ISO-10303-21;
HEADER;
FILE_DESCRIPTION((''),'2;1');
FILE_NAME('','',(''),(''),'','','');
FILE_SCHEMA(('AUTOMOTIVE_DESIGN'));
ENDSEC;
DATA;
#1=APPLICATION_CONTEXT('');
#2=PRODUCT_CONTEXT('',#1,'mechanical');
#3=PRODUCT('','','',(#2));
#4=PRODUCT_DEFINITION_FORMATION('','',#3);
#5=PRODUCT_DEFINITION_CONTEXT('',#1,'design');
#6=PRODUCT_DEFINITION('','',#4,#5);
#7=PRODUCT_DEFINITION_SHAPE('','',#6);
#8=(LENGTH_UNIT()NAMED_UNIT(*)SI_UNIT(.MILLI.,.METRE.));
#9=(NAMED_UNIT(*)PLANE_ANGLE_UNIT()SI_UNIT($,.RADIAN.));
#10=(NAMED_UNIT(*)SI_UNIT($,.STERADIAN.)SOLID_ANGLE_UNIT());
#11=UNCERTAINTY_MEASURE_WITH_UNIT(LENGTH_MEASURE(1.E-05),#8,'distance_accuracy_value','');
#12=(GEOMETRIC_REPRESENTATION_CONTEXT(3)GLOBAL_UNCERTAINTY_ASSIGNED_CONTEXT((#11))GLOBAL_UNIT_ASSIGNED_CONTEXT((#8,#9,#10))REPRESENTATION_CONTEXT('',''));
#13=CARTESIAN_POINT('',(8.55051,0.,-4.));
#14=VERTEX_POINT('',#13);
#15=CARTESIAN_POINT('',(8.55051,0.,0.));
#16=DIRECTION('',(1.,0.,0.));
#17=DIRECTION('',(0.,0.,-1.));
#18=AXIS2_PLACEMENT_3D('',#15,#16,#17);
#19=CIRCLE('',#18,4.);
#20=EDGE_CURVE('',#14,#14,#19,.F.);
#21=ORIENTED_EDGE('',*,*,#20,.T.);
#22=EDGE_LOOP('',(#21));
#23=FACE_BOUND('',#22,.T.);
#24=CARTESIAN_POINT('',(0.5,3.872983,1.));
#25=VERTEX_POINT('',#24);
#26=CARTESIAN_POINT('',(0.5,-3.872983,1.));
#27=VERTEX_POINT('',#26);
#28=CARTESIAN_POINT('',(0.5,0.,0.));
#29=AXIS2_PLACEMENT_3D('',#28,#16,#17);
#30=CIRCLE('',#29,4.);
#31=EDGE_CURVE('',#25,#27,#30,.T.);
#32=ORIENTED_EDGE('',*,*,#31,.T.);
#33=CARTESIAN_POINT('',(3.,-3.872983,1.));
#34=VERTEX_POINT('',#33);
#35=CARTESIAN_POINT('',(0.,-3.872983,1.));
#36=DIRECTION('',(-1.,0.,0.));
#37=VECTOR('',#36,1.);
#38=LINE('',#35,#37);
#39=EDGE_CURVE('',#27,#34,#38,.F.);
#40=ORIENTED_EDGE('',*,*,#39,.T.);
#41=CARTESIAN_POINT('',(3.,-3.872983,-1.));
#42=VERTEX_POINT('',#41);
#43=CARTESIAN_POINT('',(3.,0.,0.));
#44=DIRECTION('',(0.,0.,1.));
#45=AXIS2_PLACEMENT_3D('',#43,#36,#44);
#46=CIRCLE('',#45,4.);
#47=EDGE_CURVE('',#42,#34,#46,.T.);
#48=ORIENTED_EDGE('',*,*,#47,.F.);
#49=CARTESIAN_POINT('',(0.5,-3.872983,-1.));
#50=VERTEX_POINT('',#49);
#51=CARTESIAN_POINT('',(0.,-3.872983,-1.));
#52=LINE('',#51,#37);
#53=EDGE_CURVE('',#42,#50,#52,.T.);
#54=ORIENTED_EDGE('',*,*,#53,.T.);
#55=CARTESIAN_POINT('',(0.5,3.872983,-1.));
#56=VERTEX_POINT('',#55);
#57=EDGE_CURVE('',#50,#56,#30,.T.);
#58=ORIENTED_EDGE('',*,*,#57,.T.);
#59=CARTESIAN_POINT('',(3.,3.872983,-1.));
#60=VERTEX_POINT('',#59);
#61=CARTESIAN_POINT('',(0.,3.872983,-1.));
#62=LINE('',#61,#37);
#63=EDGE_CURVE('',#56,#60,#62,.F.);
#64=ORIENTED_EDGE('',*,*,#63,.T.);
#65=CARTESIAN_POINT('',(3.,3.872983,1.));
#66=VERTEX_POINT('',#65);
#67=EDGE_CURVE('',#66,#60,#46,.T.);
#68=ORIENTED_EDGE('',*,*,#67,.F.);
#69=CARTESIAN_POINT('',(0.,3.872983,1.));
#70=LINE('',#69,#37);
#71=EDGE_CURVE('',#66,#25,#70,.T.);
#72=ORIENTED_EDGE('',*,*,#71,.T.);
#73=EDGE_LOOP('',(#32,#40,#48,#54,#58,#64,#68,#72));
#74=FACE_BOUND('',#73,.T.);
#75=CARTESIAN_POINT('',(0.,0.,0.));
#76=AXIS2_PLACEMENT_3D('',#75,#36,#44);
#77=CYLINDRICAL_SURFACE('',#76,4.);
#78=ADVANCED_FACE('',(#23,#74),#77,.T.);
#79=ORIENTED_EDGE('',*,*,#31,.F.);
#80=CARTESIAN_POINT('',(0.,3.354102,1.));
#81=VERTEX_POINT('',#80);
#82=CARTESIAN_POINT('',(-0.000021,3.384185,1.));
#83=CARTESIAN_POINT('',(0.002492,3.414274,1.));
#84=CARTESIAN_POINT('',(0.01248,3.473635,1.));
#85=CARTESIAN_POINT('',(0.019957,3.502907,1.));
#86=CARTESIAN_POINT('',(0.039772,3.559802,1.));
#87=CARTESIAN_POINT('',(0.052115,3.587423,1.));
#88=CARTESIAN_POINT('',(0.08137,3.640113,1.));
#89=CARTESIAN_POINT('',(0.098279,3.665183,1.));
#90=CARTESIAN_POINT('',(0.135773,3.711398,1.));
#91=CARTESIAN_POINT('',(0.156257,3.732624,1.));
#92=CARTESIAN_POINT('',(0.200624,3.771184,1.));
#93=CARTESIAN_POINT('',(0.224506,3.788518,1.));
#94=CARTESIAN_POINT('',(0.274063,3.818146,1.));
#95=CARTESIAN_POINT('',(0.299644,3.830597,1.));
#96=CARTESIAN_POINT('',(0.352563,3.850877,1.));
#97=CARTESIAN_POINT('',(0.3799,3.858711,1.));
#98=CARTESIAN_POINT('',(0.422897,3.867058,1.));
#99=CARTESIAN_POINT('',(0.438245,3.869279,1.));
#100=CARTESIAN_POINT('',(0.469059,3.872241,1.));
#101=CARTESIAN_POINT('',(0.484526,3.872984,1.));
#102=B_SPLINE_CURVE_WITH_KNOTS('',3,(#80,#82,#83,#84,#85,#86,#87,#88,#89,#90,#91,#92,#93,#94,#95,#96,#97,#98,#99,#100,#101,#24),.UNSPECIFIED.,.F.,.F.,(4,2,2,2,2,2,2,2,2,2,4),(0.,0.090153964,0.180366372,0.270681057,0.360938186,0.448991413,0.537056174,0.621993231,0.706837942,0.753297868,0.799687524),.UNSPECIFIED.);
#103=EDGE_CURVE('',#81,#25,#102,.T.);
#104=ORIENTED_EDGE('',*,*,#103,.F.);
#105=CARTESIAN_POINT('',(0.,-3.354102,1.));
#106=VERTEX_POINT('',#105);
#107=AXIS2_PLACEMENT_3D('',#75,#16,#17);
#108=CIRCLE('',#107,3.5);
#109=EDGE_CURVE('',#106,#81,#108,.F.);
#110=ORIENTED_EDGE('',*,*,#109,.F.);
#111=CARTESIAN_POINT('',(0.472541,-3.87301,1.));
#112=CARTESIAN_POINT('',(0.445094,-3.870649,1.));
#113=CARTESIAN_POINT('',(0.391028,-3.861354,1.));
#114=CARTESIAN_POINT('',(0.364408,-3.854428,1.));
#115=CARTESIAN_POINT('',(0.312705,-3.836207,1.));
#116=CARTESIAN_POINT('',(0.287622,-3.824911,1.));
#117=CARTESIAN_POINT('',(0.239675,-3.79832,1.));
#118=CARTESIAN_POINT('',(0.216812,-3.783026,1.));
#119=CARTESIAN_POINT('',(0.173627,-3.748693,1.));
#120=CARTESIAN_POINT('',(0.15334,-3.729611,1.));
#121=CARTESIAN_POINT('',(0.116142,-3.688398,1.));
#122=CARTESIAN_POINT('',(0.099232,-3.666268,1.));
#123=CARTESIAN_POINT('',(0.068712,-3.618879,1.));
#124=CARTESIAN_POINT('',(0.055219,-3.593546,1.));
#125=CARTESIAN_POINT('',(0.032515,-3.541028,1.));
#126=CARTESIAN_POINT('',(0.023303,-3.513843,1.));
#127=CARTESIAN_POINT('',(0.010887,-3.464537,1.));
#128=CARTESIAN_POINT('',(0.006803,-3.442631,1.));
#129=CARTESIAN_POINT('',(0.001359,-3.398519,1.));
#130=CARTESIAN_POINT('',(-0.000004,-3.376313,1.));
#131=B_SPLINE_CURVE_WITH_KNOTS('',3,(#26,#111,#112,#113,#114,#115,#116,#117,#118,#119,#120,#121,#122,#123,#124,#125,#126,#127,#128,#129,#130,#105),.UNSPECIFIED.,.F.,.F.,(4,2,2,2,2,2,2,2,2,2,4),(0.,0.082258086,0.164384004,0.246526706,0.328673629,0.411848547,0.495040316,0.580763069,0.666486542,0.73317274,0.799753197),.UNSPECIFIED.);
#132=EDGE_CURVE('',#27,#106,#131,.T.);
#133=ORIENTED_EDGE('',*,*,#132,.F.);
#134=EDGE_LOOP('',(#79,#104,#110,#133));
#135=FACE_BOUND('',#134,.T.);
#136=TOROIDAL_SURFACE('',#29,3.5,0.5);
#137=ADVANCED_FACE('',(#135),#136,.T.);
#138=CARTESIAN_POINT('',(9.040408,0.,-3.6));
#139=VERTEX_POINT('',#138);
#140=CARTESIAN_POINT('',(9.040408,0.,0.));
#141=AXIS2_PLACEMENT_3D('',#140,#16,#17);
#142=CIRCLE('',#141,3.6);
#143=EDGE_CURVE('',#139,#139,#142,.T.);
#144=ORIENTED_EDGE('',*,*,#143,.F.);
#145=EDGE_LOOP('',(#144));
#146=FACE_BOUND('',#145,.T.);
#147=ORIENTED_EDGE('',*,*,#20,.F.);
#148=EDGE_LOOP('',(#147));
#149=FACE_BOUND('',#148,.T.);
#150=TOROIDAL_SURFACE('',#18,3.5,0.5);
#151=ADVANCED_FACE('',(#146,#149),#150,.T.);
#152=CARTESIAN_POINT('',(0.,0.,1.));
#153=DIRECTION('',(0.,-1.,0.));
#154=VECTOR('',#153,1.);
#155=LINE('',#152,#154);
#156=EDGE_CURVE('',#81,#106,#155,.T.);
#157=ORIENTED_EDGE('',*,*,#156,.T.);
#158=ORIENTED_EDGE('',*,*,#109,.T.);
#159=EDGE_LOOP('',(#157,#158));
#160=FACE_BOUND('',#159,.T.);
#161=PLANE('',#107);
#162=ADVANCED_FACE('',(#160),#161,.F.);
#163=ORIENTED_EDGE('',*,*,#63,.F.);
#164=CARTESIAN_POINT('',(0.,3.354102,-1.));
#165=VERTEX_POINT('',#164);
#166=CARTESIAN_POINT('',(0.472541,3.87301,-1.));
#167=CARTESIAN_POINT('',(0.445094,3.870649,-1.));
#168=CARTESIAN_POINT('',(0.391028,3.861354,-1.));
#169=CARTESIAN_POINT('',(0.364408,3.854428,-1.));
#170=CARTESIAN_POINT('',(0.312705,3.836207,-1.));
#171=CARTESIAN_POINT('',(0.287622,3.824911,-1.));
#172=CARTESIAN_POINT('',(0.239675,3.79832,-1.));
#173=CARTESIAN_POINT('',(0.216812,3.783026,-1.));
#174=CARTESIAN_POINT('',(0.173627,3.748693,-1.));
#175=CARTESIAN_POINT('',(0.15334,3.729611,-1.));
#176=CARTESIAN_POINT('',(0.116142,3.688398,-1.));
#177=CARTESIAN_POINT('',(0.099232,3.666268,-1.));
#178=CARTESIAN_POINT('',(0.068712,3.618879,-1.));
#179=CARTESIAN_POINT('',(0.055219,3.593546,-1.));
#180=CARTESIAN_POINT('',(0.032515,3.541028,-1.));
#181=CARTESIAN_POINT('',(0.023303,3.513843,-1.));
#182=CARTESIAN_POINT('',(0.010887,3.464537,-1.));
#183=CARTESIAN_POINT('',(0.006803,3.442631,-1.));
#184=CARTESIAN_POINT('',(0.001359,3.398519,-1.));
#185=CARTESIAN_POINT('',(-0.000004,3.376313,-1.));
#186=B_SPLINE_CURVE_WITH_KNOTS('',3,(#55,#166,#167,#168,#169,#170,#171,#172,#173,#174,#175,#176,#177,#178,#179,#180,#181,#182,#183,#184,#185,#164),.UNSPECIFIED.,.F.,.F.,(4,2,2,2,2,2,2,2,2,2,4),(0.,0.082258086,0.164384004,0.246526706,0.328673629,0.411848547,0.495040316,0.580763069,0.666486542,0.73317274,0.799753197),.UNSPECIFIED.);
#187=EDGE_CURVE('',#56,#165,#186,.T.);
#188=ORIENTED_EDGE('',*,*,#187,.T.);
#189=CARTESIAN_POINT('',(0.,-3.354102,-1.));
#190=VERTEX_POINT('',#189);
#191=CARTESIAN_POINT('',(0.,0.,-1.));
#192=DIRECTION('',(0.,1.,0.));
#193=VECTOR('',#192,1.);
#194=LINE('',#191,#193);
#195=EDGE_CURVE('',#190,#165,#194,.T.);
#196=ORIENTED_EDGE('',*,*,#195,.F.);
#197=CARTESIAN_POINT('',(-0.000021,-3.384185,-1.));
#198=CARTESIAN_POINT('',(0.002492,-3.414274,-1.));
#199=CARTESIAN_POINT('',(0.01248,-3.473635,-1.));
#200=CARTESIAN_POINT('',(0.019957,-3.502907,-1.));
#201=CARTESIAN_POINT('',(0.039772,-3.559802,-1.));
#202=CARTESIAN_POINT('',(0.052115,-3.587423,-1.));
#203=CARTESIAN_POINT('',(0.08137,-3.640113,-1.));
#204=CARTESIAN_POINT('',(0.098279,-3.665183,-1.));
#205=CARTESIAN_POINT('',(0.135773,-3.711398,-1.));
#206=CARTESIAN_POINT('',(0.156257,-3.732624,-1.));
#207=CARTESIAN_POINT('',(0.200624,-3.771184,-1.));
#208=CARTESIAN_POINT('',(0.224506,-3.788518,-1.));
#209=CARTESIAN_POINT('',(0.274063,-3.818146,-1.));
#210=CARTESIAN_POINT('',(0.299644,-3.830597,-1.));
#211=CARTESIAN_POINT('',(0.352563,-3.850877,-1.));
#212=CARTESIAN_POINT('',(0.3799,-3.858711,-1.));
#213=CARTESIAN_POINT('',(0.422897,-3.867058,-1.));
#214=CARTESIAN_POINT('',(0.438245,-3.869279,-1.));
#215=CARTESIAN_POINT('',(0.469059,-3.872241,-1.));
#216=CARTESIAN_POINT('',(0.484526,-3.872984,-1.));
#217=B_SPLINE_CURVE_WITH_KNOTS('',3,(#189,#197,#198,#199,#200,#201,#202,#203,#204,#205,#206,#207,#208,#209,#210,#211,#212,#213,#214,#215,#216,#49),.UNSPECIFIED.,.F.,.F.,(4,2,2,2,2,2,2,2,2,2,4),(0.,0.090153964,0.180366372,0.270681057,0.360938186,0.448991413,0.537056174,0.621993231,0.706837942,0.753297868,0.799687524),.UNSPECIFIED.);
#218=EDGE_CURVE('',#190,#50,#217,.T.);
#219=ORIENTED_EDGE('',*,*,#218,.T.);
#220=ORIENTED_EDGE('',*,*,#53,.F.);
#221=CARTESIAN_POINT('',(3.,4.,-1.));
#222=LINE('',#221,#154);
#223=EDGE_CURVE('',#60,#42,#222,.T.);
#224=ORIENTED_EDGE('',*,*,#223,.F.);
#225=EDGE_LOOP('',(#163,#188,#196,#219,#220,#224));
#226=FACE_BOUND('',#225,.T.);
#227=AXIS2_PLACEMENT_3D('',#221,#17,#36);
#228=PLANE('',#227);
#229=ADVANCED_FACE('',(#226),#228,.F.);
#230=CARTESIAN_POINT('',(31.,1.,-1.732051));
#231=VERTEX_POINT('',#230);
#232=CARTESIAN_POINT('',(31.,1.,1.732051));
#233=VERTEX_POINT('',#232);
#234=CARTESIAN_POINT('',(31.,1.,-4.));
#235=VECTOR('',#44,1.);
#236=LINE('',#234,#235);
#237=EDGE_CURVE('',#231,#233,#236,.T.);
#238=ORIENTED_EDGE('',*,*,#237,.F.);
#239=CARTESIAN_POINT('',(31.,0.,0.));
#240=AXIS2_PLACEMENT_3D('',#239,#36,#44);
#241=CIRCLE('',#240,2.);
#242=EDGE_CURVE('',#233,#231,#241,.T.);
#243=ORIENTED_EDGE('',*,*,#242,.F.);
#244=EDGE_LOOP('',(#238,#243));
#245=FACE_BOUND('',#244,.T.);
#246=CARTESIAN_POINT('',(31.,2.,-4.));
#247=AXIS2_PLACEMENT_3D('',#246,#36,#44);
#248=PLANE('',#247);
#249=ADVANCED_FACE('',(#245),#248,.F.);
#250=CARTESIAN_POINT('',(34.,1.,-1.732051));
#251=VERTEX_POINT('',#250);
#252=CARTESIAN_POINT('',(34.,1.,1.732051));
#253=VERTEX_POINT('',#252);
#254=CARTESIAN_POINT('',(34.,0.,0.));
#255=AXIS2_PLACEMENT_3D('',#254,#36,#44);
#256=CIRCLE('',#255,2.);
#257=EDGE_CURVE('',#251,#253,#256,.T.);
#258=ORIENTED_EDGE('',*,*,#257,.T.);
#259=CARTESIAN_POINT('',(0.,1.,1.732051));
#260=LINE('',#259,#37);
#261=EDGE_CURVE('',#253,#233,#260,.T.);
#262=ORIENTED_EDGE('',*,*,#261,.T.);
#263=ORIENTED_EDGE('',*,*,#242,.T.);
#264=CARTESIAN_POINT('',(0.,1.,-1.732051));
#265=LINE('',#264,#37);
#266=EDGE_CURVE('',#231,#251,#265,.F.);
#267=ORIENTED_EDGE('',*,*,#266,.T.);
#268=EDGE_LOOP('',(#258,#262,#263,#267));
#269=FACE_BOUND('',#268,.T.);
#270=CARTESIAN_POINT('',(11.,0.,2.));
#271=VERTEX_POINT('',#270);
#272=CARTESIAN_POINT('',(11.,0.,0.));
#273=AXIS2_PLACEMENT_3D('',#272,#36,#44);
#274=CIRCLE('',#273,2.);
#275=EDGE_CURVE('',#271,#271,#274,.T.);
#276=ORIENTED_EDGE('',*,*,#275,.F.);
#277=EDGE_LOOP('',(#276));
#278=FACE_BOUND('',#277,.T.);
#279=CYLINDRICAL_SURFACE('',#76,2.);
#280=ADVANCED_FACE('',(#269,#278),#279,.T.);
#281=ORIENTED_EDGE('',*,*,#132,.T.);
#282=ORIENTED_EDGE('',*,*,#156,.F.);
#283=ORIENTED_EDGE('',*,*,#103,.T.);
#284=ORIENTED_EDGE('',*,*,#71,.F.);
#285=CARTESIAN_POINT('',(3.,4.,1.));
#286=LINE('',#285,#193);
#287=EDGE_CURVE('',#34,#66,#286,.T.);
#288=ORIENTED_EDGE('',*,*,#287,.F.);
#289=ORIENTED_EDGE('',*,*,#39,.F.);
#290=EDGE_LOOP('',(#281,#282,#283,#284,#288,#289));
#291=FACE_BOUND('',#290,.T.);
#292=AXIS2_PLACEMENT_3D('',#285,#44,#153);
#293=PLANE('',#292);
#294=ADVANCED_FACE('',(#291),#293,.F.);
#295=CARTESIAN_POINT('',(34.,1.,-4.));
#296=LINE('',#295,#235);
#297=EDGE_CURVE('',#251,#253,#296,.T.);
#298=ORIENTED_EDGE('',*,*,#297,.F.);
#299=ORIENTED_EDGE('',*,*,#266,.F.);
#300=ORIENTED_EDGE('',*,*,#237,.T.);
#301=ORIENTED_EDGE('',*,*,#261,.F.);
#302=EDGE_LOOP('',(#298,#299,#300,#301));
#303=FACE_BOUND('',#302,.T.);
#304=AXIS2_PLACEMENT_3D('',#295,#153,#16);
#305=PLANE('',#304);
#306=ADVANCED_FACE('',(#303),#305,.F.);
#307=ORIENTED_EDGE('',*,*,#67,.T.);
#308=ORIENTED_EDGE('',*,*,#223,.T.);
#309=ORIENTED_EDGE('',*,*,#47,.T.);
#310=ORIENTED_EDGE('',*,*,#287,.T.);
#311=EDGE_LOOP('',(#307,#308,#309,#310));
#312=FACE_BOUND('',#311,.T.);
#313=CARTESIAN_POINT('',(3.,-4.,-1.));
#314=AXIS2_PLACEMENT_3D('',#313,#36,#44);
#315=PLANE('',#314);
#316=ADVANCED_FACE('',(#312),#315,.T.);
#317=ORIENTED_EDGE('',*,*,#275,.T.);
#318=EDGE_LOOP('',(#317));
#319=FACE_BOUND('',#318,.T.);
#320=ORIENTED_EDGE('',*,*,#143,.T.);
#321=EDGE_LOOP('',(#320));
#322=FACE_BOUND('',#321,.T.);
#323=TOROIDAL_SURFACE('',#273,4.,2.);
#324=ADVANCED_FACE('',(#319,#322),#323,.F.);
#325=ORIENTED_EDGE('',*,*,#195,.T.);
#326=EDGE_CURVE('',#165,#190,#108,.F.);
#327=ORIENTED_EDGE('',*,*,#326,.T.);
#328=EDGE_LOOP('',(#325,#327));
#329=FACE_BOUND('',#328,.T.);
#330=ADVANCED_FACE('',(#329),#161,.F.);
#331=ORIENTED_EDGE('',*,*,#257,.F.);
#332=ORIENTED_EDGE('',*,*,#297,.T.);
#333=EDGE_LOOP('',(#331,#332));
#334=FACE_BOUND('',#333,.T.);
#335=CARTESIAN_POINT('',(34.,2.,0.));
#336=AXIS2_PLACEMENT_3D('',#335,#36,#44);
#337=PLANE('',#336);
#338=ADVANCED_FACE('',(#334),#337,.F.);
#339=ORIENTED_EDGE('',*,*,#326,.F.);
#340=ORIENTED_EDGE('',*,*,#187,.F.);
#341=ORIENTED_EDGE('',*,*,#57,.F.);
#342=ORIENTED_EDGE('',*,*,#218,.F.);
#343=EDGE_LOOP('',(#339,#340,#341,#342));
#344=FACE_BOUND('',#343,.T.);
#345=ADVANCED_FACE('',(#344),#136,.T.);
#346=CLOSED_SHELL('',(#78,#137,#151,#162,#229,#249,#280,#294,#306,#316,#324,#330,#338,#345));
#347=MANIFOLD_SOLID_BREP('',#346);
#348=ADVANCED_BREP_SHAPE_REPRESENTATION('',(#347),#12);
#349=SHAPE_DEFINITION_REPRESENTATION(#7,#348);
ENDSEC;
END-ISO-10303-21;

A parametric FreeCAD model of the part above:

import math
import FreeCAD as App
import Part
import Sketcher
from FreeCAD import Vector


def edges_at(feature, points):
    """Names of the edges that pass closest to the given points."""
    edges = feature.Shape.Edges
    near = lambda p: min(range(len(edges)), key=lambda i: edges[i].distToShape(Part.Vertex(*p))[0])
    return sorted({f"Edge{near(p) + 1}" for p in points})

doc = App.newDocument("Part")
params = doc.addObject("Spreadsheet::Sheet", "Params")
for row, (alias, value) in enumerate([
    ("sketch1_radius", "2 mm"),
    ("sketch1_width", "34 mm"),
    ("sketch1_width2", "23 mm"),
    ("sketch1_height", "4 mm"),
    ("sketch1_height2", "2 mm"),
    ("revolution_angle", "360 deg"),
    ("sketch2_width", "8 mm"),
    ("sketch2_height", "2 mm"),
    ("pocket1_length", "3 mm"),
    ("fillet_radius", "0.5 mm"),
    ("sketch3_width", "3 mm"),
    ("sketch3_height", "1 mm"),
    ("pocket2_length", "8 mm"),
], start=1):
    params.set(f"A{row}", alias)
    params.set(f"B{row}", "=" + value)
    params.setAlias(f"B{row}", alias)

body = doc.addObject("PartDesign::Body", "Body")

# Sketch on XY plane
sketch1 = body.newObject("Sketcher::SketchObject", "Sketch")
sketch1.AttachmentSupport = (doc.getObject("XY_Plane"), [""])
sketch1.MapMode = "FlatFace"
sketch1.addGeometry(Part.LineSegment(Vector(0, 4, 0), Vector(0, 0, 0)), False)
sketch1.addGeometry(Part.LineSegment(Vector(0, 0, 0), Vector(34, 0, 0)), False)
sketch1.addGeometry(Part.LineSegment(Vector(34, 0, 0), Vector(34, 2, 0)), False)
sketch1.addGeometry(Part.LineSegment(Vector(34, 2, 0), Vector(11, 2, 0)), False)
sketch1.addGeometry(Part.ArcOfCircle(Part.Circle(Vector(11, 4, 0), Vector(0, 0, 1), 2), math.radians(-180), math.radians(-90)), False)
sketch1.addGeometry(Part.LineSegment(Vector(9, 4, 0), Vector(0, 4, 0)), False)
sketch1.addConstraint(Sketcher.Constraint("Coincident", 0, 2, 1, 1))
sketch1.addConstraint(Sketcher.Constraint("Coincident", 1, 2, 2, 1))
sketch1.addConstraint(Sketcher.Constraint("Coincident", 2, 2, 3, 1))
sketch1.addConstraint(Sketcher.Constraint("Tangent", 3, 2, 4, 2))
sketch1.addConstraint(Sketcher.Constraint("Coincident", 4, 1, 5, 1))
sketch1.addConstraint(Sketcher.Constraint("Coincident", 5, 2, 0, 1))
sketch1.addConstraint(Sketcher.Constraint("Vertical", 0))
sketch1.addConstraint(Sketcher.Constraint("Horizontal", 1))
sketch1.addConstraint(Sketcher.Constraint("Vertical", 2))
sketch1.addConstraint(Sketcher.Constraint("Horizontal", 3))
sketch1.addConstraint(Sketcher.Constraint("Horizontal", 5))
sketch1.addConstraint(Sketcher.Constraint("Coincident", 0, 2, -1, 1))
sketch1.addConstraint(Sketcher.Constraint("Radius", 4, 2.0))
sketch1.addConstraint(Sketcher.Constraint("DistanceX", 1, 1, 1, 2, 34.0))
sketch1.addConstraint(Sketcher.Constraint("DistanceX", 3, 2, 3, 1, 23.0))
sketch1.addConstraint(Sketcher.Constraint("DistanceY", 0, 2, 0, 1, 4.0))
sketch1.addConstraint(Sketcher.Constraint("DistanceY", 2, 1, 2, 2, 2.0))
sketch1.setExpression("Constraints[12]", "Params.sketch1_radius")
sketch1.setExpression("Constraints[13]", "Params.sketch1_width")
sketch1.setExpression("Constraints[14]", "Params.sketch1_width2")
sketch1.setExpression("Constraints[15]", "Params.sketch1_height")
sketch1.setExpression("Constraints[16]", "Params.sketch1_height2")
revolution = body.newObject("PartDesign::Revolution", "Revolution")
revolution.Profile = sketch1
revolution.ReferenceAxis = (sketch1, ["H_Axis"])
revolution.setExpression("Angle", "Params.revolution_angle")

# Sketch on YZ plane
sketch2 = body.newObject("Sketcher::SketchObject", "Sketch001")
sketch2.AttachmentSupport = (doc.getObject("YZ_Plane"), [""])
sketch2.MapMode = "FlatFace"
sketch2.addGeometry(Part.LineSegment(Vector(4, -1, 0), Vector(-4, -1, 0)), False)
sketch2.addGeometry(Part.LineSegment(Vector(-4, -1, 0), Vector(-4, 1, 0)), False)
sketch2.addGeometry(Part.LineSegment(Vector(-4, 1, 0), Vector(4, 1, 0)), False)
sketch2.addGeometry(Part.LineSegment(Vector(4, 1, 0), Vector(4, -1, 0)), False)
sketch2.addConstraint(Sketcher.Constraint("Coincident", 0, 2, 1, 1))
sketch2.addConstraint(Sketcher.Constraint("Coincident", 1, 2, 2, 1))
sketch2.addConstraint(Sketcher.Constraint("Coincident", 2, 2, 3, 1))
sketch2.addConstraint(Sketcher.Constraint("Coincident", 3, 2, 0, 1))
sketch2.addConstraint(Sketcher.Constraint("Horizontal", 0))
sketch2.addConstraint(Sketcher.Constraint("Vertical", 1))
sketch2.addConstraint(Sketcher.Constraint("Horizontal", 2))
sketch2.addConstraint(Sketcher.Constraint("Vertical", 3))
sketch2.addConstraint(Sketcher.Constraint("Symmetric", 0, 2, 2, 2, -1, 1))
sketch2.addConstraint(Sketcher.Constraint("DistanceX", 0, 2, 0, 1, 8.0))
sketch2.addConstraint(Sketcher.Constraint("DistanceY", 1, 1, 1, 2, 2.0))
sketch2.setExpression("Constraints[9]", "Params.sketch2_width")
sketch2.setExpression("Constraints[10]", "Params.sketch2_height")
pocket1 = body.newObject("PartDesign::Pocket", "Pocket")
pocket1.Profile = sketch2
pocket1.setExpression("Length", "Params.pocket1_length")
pocket1.Reversed = True
doc.recompute()

fillet = body.newObject("PartDesign::Fillet", "Fillet")
fillet.Base = (pocket1, edges_at(pocket1, [(0, 0, -4), (0, 0, 4), (9, -4, 0)]))
fillet.setExpression("Radius", "Params.fillet_radius")

# Sketch on XY plane
sketch3 = body.newObject("Sketcher::SketchObject", "Sketch002")
sketch3.AttachmentSupport = (doc.getObject("XY_Plane"), [""])
sketch3.MapMode = "FlatFace"
sketch3.addGeometry(Part.LineSegment(Vector(31, 2, 0), Vector(31, 1, 0)), False)
sketch3.addGeometry(Part.LineSegment(Vector(31, 1, 0), Vector(34, 1, 0)), False)
sketch3.addGeometry(Part.LineSegment(Vector(34, 1, 0), Vector(34, 2, 0)), False)
sketch3.addGeometry(Part.LineSegment(Vector(34, 2, 0), Vector(31, 2, 0)), False)
sketch3.addConstraint(Sketcher.Constraint("Coincident", 0, 2, 1, 1))
sketch3.addConstraint(Sketcher.Constraint("Coincident", 1, 2, 2, 1))
sketch3.addConstraint(Sketcher.Constraint("Coincident", 2, 2, 3, 1))
sketch3.addConstraint(Sketcher.Constraint("Coincident", 3, 2, 0, 1))
sketch3.addConstraint(Sketcher.Constraint("Vertical", 0))
sketch3.addConstraint(Sketcher.Constraint("Horizontal", 1))
sketch3.addConstraint(Sketcher.Constraint("Vertical", 2))
sketch3.addConstraint(Sketcher.Constraint("Horizontal", 3))
sketch3.addConstraint(Sketcher.Constraint("DistanceX", 1, 1, 1, 2, 3.0))
sketch3.addConstraint(Sketcher.Constraint("DistanceY", 0, 2, 0, 1, 1.0))
sketch3.addConstraint(Sketcher.Constraint("DistanceX", -1, 1, 0, 2, 31.0))
sketch3.addConstraint(Sketcher.Constraint("DistanceY", -1, 1, 0, 2, 1.0))
sketch3.setExpression("Constraints[8]", "Params.sketch3_width")
sketch3.setExpression("Constraints[9]", "Params.sketch3_height")
pocket2 = body.newObject("PartDesign::Pocket", "Pocket001")
pocket2.Profile = sketch3
pocket2.setExpression("Length", "Params.pocket2_length")
pocket2.Midplane = True

doc.recompute()
